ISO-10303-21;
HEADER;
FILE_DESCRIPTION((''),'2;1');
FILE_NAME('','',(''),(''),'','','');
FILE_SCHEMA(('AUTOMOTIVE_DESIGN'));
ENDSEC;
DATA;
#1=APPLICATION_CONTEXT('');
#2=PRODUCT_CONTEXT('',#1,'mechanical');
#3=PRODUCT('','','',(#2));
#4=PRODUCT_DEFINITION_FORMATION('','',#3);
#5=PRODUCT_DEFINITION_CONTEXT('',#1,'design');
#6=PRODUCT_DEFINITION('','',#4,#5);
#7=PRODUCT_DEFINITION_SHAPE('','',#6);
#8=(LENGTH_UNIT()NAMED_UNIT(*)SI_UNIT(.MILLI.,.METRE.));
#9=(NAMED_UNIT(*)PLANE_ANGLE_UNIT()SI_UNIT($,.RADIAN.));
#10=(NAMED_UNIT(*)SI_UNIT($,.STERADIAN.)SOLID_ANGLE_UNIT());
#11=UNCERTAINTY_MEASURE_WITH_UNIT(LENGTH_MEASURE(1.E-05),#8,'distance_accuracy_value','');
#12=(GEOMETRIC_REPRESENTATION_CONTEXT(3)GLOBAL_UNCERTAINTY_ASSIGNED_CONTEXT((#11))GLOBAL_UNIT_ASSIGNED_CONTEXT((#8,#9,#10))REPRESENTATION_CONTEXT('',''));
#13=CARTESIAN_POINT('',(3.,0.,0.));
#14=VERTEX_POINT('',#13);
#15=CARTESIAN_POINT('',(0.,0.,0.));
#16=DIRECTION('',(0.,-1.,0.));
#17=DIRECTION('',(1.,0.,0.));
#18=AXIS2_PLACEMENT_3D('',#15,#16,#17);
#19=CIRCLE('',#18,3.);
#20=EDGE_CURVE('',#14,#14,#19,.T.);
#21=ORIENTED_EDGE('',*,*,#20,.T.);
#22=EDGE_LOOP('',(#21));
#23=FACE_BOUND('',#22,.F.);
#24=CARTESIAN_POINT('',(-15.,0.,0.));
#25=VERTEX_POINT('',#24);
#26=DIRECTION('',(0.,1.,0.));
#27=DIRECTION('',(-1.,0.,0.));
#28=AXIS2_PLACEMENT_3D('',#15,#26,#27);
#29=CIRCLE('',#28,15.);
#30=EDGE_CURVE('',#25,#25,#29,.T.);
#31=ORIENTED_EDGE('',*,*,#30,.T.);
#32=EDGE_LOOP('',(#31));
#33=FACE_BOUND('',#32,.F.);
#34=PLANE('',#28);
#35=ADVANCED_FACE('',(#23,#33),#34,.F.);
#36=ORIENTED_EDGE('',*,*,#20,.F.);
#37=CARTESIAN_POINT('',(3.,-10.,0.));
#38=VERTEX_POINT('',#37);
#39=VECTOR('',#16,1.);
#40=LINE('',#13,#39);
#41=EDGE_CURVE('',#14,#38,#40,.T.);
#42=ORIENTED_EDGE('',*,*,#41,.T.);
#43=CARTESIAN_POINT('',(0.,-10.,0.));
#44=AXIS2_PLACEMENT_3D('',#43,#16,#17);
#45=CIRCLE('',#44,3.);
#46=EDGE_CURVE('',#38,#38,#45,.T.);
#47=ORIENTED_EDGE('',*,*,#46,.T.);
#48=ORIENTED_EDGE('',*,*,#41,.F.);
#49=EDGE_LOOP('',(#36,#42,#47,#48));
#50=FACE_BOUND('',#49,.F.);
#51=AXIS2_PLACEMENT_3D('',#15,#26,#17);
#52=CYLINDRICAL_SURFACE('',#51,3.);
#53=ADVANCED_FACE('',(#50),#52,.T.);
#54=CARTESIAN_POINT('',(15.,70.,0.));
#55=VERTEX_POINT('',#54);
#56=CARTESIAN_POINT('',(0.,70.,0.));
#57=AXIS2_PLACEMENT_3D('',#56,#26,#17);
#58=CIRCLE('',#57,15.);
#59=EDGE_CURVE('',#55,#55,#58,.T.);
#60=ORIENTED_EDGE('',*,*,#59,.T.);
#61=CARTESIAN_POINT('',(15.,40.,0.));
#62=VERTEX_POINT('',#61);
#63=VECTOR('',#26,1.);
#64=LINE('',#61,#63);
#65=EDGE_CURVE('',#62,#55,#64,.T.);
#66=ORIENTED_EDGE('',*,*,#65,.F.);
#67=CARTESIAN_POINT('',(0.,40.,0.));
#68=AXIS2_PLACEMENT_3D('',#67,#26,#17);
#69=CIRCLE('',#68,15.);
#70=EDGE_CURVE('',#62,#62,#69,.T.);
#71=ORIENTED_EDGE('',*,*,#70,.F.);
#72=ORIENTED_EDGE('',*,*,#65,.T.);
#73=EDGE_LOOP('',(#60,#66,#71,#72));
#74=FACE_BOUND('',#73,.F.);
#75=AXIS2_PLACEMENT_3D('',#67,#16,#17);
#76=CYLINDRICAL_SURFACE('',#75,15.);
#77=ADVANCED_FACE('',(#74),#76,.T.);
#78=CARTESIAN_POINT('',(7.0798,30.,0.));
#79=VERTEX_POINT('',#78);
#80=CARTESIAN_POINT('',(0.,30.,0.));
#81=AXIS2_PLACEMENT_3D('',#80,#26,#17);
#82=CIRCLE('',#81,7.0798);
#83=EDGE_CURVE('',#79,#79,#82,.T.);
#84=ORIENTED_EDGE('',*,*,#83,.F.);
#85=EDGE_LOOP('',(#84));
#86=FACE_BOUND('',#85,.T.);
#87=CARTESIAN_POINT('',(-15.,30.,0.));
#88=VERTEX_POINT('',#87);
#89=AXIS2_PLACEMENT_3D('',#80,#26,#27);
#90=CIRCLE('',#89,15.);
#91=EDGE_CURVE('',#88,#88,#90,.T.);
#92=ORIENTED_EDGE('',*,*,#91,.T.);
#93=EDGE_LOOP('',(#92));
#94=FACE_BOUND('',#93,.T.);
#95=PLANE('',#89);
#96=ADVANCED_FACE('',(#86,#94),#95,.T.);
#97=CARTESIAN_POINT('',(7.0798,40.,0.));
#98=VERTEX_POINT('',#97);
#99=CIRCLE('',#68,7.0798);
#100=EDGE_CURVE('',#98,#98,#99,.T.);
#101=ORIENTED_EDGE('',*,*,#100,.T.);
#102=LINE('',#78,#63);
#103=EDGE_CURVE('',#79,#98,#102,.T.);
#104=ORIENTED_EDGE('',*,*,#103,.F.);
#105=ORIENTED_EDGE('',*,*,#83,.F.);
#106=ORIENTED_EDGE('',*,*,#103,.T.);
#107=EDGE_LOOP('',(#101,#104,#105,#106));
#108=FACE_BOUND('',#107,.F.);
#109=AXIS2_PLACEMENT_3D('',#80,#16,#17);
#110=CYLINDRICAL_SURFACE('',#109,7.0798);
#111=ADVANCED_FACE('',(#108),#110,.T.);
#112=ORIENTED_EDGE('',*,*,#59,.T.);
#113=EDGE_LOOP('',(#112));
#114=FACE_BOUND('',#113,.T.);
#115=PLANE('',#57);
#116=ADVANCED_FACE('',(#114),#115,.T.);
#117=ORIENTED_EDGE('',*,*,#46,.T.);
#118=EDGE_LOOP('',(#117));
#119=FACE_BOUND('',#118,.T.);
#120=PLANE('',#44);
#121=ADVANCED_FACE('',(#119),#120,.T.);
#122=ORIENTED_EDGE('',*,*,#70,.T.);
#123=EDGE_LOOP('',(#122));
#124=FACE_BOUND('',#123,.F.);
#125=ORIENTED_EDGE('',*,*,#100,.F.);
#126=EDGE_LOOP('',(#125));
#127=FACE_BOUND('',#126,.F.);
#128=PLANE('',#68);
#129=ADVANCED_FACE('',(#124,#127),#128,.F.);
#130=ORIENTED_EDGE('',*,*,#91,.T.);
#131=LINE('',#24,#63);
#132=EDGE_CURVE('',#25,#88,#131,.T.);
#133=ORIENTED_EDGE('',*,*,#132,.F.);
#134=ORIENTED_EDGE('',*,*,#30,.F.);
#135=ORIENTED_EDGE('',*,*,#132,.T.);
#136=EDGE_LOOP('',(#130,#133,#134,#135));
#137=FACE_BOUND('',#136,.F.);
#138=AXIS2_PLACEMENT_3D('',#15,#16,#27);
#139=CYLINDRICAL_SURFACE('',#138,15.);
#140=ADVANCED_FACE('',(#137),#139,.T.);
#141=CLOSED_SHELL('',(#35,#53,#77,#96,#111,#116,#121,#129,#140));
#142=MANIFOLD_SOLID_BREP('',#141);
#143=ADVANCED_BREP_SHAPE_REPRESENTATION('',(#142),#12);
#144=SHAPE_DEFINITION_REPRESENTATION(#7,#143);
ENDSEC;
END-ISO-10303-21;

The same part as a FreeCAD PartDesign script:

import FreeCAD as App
import Part
import Sketcher

V = App.Vector

doc = App.newDocument("Part")
body = doc.addObject("PartDesign::Body", "Body")

sketch1 = body.newObject("Sketcher::SketchObject", "Sketch")
sketch1.AttachmentSupport = (doc.getObject("XZ_Plane"), [""])
sketch1.MapMode = "FlatFace"
sketch1.addGeometry(Part.Circle(V(0, 0, 0), V(0, 0, 1), 15), False)
sketch1.addConstraint([
    Sketcher.Constraint("Coincident", 0, 3, -1, 1),
    Sketcher.Constraint("Diameter", 0, 30.0),
])
pad1 = body.newObject("PartDesign::Pad", "Pad")
pad1.Profile = sketch1
pad1.Length = 30
pad1.Reversed = True

sketch2 = body.newObject("Sketcher::SketchObject", "Sketch001")
sketch2.AttachmentSupport = (doc.getObject("XZ_Plane"), [""])
sketch2.MapMode = "FlatFace"
sketch2.addGeometry(Part.Circle(V(0, 0, 0), V(0, 0, 1), 3), False)
sketch2.addConstraint([
    Sketcher.Constraint("Coincident", 0, 3, -1, 1),
    Sketcher.Constraint("Diameter", 0, 6.0),
])
pad2 = body.newObject("PartDesign::Pad", "Pad001")
pad2.Profile = sketch2
pad2.Length = 10

sketch3 = body.newObject("Sketcher::SketchObject", "Sketch002")
sketch3.AttachmentSupport = (doc.getObject("XZ_Plane"), [""])
sketch3.MapMode = "FlatFace"
sketch3.AttachmentOffset = App.Placement(V(0, 0, -30), App.Rotation())
sketch3.addGeometry(Part.Circle(V(0, 0, 0), V(0, 0, 1), 3), False)
sketch3.addConstraint([
    Sketcher.Constraint("Coincident", 0, 3, -1, 1),
    Sketcher.Constraint("Diameter", 0, 6.0),
])
pad3 = body.newObject("PartDesign::Pad", "Pad002")
pad3.Profile = sketch3
pad3.Length = 10
pad3.Reversed = True

sketch4 = body.newObject("Sketcher::SketchObject", "Sketch003")
sketch4.AttachmentSupport = (doc.getObject("XZ_Plane"), [""])
sketch4.MapMode = "FlatFace"
sketch4.AttachmentOffset = App.Placement(V(0, 0, -40), App.Rotation())
sketch4.addGeometry(Part.Circle(V(0, 0, 0), V(0, 0, 1), 15), False)
sketch4.addConstraint([
    Sketcher.Constraint("Coincident", 0, 3, -1, 1),
    Sketcher.Constraint("Diameter", 0, 30.0),
])
pad4 = body.newObject("PartDesign::Pad", "Pad003")
pad4.Profile = sketch4
pad4.Length = 30
pad4.Reversed = True

sketch5 = body.newObject("Sketcher::SketchObject", "Sketch004")
sketch5.AttachmentSupport = (doc.getObject("XZ_Plane"), [""])
sketch5.MapMode = "FlatFace"
sketch5.AttachmentOffset = App.Placement(V(0, 0, -30), App.Rotation())
sketch5.addGeometry(Part.Circle(V(0, 0, 0), V(0, 0, 1), 7), False)
sketch5.addConstraint([
    Sketcher.Constraint("Coincident", 0, 3, -1, 1),
    Sketcher.Constraint("Diameter", 0, 14.1596),
])
pad5 = body.newObject("PartDesign::Pad", "Pad004")
pad5.Profile = sketch5
pad5.Length = 10
pad5.Reversed = True

doc.recompute()
